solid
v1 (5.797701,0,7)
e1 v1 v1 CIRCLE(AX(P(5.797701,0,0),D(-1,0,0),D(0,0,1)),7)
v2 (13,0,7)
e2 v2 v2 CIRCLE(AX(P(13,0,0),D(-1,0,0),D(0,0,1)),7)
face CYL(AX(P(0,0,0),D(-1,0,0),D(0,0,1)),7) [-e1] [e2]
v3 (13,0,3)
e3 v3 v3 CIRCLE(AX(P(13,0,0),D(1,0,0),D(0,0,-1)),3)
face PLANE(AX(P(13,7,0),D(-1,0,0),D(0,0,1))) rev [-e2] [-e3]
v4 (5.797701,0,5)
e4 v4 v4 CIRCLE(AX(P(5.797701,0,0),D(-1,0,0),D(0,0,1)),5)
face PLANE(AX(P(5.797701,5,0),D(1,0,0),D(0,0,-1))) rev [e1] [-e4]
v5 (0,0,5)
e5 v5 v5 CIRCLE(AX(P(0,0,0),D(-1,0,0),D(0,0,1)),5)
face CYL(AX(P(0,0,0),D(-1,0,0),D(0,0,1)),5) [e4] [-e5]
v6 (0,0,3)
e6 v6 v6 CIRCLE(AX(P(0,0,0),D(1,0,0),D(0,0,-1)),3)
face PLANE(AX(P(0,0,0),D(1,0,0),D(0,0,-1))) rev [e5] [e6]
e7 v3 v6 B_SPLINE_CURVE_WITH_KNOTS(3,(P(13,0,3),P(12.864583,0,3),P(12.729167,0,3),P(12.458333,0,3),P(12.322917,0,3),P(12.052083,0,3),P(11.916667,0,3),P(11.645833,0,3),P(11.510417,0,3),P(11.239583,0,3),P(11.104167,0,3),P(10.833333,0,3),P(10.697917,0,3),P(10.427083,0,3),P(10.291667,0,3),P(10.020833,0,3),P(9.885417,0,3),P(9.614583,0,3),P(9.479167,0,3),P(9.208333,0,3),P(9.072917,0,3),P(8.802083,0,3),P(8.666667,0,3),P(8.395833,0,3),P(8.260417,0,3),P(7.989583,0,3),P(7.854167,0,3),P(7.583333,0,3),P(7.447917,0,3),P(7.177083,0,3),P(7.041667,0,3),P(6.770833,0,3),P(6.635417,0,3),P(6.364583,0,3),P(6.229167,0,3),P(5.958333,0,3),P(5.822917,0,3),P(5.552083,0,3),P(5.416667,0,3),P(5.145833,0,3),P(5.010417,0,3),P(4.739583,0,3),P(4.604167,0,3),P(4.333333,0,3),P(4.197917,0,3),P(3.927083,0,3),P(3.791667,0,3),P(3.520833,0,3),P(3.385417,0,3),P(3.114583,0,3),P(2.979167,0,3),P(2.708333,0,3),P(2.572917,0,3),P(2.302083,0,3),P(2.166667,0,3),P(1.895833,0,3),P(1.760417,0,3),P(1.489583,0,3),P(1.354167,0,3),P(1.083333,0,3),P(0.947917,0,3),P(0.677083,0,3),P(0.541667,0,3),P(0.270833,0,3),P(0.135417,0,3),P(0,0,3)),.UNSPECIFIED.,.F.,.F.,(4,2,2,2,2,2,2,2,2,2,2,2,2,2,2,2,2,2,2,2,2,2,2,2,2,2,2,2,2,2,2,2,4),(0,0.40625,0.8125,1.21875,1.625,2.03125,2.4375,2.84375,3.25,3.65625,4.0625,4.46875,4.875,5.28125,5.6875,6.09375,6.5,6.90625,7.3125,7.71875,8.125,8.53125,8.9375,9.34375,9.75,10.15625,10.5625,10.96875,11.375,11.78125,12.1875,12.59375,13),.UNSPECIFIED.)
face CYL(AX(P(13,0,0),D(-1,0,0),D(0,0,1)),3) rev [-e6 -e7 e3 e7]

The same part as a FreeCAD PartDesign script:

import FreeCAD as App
import Part
import Sketcher
Q = App.Units.Quantity

doc = App.newDocument("Part")
body = doc.addObject("PartDesign::Body", "Body")

sketch1 = body.newObject("Sketcher::SketchObject", "Sketch")
sketch1.AttachmentSupport = (doc.getObject("XY_Plane"), [""])
sketch1.MapMode = "FlatFace"
sketch1.addGeometry([
    Part.LineSegment(App.Vector(0, 5, 0), App.Vector(0, 0, 0)),
    Part.LineSegment(App.Vector(0, 0, 0), App.Vector(13, 0, 0)),
    Part.LineSegment(App.Vector(13, 0, 0), App.Vector(13, 7, 0)),
    Part.LineSegment(App.Vector(13, 7, 0), App.Vector(5.8, 7, 0)),
    Part.LineSegment(App.Vector(5.8, 7, 0), App.Vector(5.8, 5, 0)),
    Part.LineSegment(App.Vector(5.8, 5, 0), App.Vector(0, 5, 0)),
], False)
sketch1.addConstraint([
    Sketcher.Constraint("Coincident", 0, 2, 1, 1),
    Sketcher.Constraint("Coincident", 1, 2, 2, 1),
    Sketcher.Constraint("Coincident", 2, 2, 3, 1),
    Sketcher.Constraint("Coincident", 3, 2, 4, 1),
    Sketcher.Constraint("Coincident", 4, 2, 5, 1),
    Sketcher.Constraint("Coincident", 5, 2, 0, 1),
    Sketcher.Constraint("Vertical", 0),
    Sketcher.Constraint("Horizontal", 1),
    Sketcher.Constraint("Vertical", 2),
    Sketcher.Constraint("Horizontal", 3),
    Sketcher.Constraint("Vertical", 4),
    Sketcher.Constraint("Horizontal", 5),
    Sketcher.Constraint("Coincident", 0, 2, -1, 1),
    Sketcher.Constraint("DistanceX", 1, 1, 1, 2, Q("13 mm")),
    Sketcher.Constraint("DistanceY", 0, 2, 0, 1, Q("5 mm")),
    Sketcher.Constraint("DistanceY", 2, 1, 2, 2, Q("7 mm")),
    Sketcher.Constraint("DistanceX", 3, 2, 3, 1, Q("7.202299 mm")),
])
revolution = body.newObject("PartDesign::Revolution", "Revolution")
revolution.Profile = sketch1
revolution.ReferenceAxis = (sketch1, ["H_Axis"])
revolution.Angle = 360

sketch2 = body.newObject("Sketcher::SketchObject", "Sketch001")
sketch2.AttachmentSupport = (doc.getObject("YZ_Plane"), [""])
sketch2.MapMode = "FlatFace"
sketch2.addGeometry(Part.Circle(App.Vector(0, 0, 0), App.Vector(0, 0, 1), 3), False)
sketch2.addConstraint([
    Sketcher.Constraint("Coincident", 0, 3, -1, 1),
    Sketcher.Constraint("Diameter", 0, Q("6 mm")),
])
pocket1 = body.newObject("PartDesign::Pocket", "Pocket")
pocket1.Profile = sketch2
pocket1.Type = "ThroughAll"
pocket1.Reversed = True

doc.recompute()
